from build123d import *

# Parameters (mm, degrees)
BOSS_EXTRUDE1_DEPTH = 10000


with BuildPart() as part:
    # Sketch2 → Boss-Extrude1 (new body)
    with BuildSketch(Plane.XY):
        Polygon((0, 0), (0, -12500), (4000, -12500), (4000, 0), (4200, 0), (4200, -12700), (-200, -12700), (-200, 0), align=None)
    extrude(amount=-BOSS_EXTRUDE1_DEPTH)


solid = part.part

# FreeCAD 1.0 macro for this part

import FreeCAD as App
import Part
import Sketcher
from FreeCAD import Vector


def add_polygon(sketch, points):
    """Adds a closed chain of lines whose ends are joined by coincident constraints."""
    first, n = sketch.GeometryCount, len(points)
    for a, b in zip(points, points[1:] + points[:1]):
        sketch.addGeometry(Part.LineSegment(App.Vector(*a, 0), App.Vector(*b, 0)), False)
    for i in range(n):
        sketch.addConstraint(Sketcher.Constraint("Coincident", first + i, 2, first + (i + 1) % n, 1))

doc = App.newDocument("Part")
body = doc.addObject("PartDesign::Body", "Body")

# Sketch on XY plane
sketch1 = doc.addObject("Sketcher::SketchObject", "Sketch")
body.addObject(sketch1)
sketch1.AttachmentSupport = (doc.XY_Plane, [""])
sketch1.MapMode = "FlatFace"
add_polygon(sketch1, [(0, -12500), (0, 0), (-200, 0), (-200, -12700), (4200, -12700), (4200, 0), (4000, 0), (4000, -12500)])  # lines 0-7
sketch1.addConstraint([
    Sketcher.Constraint("Vertical", 0),
    Sketcher.Constraint("Horizontal", 1),
    Sketcher.Constraint("Vertical", 2),
    Sketcher.Constraint("Horizontal", 3),
    Sketcher.Constraint("Vertical", 4),
    Sketcher.Constraint("Horizontal", 5),
    Sketcher.Constraint("Vertical", 6),
    Sketcher.Constraint("Horizontal", 7),
    Sketcher.Constraint("Coincident", 0, 2, -1, 1),
    Sketcher.Constraint("PointOnObject", 4, 2, -1),
    Sketcher.Constraint("Equal", 1, 5),
    Sketcher.Constraint("DistanceX", 1, 2, 1, 1, 200.0),
    Sketcher.Constraint("DistanceX", 3, 1, 3, 2, 4400.0),
    Sketcher.Constraint("DistanceY", 0, 1, 0, 2, 12500.0),
    Sketcher.Constraint("DistanceY", 2, 2, 2, 1, 12700.0),
])
pad1 = doc.addObject("PartDesign::Pad", "Pad")
body.addObject(pad1)
pad1.Profile = sketch1
pad1.Length = 10000
pad1.Reversed = True

doc.recompute()
